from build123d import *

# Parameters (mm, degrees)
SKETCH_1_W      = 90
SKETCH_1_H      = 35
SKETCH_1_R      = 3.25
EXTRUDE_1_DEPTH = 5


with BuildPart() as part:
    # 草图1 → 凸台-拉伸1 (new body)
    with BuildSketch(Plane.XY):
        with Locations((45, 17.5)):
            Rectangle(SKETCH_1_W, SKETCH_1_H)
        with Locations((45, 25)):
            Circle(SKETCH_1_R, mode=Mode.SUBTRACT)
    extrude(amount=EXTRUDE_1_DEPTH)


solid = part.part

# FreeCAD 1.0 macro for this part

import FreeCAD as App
import Part
import Sketcher

V = App.Vector


def add_polygon(sketch, points):
    """Adds a closed chain of lines whose ends are joined by coincident constraints."""
    first, n = sketch.GeometryCount, len(points)
    for a, b in zip(points, points[1:] + points[:1]):
        sketch.addGeometry(Part.LineSegment(App.Vector(*a, 0), App.Vector(*b, 0)), False)
    for i in range(n):
        sketch.addConstraint(Sketcher.Constraint("Coincident", first + i, 2, first + (i + 1) % n, 1))

doc = App.newDocument("Part")
body = doc.addObject("PartDesign::Body", "Body")

# Sketch on XY plane
sketch1 = doc.addObject("Sketcher::SketchObject", "Sketch")
body.addObject(sketch1)
sketch1.AttachmentSupport = (doc.XY_Plane, [""])
sketch1.MapMode = "FlatFace"
add_polygon(sketch1, [(0, 35), (0, 0), (90, 0), (90, 35)])  # lines 0-3
sketch1.addGeometry(Part.Circle(V(45, 25, 0), V(0, 0, 1), 3.25), False)  # 4
sketch1.addConstraint([
    Sketcher.Constraint("Vertical", 0),
    Sketcher.Constraint("Horizontal", 1),
    Sketcher.Constraint("Vertical", 2),
    Sketcher.Constraint("Horizontal", 3),
    Sketcher.Constraint("Coincident", 0, 2, -1, 1),
    Sketcher.Constraint("Diameter", 4, 6.5),
    Sketcher.Constraint("DistanceX", 1, 1, 1, 2, 90.0),
    Sketcher.Constraint("DistanceY", 0, 2, 0, 1, 35.0),
    Sketcher.Constraint("DistanceX", -1, 1, 4, 3, 45.0),
    Sketcher.Constraint("DistanceY", -1, 1, 4, 3, 25.0),
])
pad1 = doc.addObject("PartDesign::Pad", "Pad")
body.addObject(pad1)
pad1.Profile = sketch1
pad1.Length = 5

doc.recompute()
